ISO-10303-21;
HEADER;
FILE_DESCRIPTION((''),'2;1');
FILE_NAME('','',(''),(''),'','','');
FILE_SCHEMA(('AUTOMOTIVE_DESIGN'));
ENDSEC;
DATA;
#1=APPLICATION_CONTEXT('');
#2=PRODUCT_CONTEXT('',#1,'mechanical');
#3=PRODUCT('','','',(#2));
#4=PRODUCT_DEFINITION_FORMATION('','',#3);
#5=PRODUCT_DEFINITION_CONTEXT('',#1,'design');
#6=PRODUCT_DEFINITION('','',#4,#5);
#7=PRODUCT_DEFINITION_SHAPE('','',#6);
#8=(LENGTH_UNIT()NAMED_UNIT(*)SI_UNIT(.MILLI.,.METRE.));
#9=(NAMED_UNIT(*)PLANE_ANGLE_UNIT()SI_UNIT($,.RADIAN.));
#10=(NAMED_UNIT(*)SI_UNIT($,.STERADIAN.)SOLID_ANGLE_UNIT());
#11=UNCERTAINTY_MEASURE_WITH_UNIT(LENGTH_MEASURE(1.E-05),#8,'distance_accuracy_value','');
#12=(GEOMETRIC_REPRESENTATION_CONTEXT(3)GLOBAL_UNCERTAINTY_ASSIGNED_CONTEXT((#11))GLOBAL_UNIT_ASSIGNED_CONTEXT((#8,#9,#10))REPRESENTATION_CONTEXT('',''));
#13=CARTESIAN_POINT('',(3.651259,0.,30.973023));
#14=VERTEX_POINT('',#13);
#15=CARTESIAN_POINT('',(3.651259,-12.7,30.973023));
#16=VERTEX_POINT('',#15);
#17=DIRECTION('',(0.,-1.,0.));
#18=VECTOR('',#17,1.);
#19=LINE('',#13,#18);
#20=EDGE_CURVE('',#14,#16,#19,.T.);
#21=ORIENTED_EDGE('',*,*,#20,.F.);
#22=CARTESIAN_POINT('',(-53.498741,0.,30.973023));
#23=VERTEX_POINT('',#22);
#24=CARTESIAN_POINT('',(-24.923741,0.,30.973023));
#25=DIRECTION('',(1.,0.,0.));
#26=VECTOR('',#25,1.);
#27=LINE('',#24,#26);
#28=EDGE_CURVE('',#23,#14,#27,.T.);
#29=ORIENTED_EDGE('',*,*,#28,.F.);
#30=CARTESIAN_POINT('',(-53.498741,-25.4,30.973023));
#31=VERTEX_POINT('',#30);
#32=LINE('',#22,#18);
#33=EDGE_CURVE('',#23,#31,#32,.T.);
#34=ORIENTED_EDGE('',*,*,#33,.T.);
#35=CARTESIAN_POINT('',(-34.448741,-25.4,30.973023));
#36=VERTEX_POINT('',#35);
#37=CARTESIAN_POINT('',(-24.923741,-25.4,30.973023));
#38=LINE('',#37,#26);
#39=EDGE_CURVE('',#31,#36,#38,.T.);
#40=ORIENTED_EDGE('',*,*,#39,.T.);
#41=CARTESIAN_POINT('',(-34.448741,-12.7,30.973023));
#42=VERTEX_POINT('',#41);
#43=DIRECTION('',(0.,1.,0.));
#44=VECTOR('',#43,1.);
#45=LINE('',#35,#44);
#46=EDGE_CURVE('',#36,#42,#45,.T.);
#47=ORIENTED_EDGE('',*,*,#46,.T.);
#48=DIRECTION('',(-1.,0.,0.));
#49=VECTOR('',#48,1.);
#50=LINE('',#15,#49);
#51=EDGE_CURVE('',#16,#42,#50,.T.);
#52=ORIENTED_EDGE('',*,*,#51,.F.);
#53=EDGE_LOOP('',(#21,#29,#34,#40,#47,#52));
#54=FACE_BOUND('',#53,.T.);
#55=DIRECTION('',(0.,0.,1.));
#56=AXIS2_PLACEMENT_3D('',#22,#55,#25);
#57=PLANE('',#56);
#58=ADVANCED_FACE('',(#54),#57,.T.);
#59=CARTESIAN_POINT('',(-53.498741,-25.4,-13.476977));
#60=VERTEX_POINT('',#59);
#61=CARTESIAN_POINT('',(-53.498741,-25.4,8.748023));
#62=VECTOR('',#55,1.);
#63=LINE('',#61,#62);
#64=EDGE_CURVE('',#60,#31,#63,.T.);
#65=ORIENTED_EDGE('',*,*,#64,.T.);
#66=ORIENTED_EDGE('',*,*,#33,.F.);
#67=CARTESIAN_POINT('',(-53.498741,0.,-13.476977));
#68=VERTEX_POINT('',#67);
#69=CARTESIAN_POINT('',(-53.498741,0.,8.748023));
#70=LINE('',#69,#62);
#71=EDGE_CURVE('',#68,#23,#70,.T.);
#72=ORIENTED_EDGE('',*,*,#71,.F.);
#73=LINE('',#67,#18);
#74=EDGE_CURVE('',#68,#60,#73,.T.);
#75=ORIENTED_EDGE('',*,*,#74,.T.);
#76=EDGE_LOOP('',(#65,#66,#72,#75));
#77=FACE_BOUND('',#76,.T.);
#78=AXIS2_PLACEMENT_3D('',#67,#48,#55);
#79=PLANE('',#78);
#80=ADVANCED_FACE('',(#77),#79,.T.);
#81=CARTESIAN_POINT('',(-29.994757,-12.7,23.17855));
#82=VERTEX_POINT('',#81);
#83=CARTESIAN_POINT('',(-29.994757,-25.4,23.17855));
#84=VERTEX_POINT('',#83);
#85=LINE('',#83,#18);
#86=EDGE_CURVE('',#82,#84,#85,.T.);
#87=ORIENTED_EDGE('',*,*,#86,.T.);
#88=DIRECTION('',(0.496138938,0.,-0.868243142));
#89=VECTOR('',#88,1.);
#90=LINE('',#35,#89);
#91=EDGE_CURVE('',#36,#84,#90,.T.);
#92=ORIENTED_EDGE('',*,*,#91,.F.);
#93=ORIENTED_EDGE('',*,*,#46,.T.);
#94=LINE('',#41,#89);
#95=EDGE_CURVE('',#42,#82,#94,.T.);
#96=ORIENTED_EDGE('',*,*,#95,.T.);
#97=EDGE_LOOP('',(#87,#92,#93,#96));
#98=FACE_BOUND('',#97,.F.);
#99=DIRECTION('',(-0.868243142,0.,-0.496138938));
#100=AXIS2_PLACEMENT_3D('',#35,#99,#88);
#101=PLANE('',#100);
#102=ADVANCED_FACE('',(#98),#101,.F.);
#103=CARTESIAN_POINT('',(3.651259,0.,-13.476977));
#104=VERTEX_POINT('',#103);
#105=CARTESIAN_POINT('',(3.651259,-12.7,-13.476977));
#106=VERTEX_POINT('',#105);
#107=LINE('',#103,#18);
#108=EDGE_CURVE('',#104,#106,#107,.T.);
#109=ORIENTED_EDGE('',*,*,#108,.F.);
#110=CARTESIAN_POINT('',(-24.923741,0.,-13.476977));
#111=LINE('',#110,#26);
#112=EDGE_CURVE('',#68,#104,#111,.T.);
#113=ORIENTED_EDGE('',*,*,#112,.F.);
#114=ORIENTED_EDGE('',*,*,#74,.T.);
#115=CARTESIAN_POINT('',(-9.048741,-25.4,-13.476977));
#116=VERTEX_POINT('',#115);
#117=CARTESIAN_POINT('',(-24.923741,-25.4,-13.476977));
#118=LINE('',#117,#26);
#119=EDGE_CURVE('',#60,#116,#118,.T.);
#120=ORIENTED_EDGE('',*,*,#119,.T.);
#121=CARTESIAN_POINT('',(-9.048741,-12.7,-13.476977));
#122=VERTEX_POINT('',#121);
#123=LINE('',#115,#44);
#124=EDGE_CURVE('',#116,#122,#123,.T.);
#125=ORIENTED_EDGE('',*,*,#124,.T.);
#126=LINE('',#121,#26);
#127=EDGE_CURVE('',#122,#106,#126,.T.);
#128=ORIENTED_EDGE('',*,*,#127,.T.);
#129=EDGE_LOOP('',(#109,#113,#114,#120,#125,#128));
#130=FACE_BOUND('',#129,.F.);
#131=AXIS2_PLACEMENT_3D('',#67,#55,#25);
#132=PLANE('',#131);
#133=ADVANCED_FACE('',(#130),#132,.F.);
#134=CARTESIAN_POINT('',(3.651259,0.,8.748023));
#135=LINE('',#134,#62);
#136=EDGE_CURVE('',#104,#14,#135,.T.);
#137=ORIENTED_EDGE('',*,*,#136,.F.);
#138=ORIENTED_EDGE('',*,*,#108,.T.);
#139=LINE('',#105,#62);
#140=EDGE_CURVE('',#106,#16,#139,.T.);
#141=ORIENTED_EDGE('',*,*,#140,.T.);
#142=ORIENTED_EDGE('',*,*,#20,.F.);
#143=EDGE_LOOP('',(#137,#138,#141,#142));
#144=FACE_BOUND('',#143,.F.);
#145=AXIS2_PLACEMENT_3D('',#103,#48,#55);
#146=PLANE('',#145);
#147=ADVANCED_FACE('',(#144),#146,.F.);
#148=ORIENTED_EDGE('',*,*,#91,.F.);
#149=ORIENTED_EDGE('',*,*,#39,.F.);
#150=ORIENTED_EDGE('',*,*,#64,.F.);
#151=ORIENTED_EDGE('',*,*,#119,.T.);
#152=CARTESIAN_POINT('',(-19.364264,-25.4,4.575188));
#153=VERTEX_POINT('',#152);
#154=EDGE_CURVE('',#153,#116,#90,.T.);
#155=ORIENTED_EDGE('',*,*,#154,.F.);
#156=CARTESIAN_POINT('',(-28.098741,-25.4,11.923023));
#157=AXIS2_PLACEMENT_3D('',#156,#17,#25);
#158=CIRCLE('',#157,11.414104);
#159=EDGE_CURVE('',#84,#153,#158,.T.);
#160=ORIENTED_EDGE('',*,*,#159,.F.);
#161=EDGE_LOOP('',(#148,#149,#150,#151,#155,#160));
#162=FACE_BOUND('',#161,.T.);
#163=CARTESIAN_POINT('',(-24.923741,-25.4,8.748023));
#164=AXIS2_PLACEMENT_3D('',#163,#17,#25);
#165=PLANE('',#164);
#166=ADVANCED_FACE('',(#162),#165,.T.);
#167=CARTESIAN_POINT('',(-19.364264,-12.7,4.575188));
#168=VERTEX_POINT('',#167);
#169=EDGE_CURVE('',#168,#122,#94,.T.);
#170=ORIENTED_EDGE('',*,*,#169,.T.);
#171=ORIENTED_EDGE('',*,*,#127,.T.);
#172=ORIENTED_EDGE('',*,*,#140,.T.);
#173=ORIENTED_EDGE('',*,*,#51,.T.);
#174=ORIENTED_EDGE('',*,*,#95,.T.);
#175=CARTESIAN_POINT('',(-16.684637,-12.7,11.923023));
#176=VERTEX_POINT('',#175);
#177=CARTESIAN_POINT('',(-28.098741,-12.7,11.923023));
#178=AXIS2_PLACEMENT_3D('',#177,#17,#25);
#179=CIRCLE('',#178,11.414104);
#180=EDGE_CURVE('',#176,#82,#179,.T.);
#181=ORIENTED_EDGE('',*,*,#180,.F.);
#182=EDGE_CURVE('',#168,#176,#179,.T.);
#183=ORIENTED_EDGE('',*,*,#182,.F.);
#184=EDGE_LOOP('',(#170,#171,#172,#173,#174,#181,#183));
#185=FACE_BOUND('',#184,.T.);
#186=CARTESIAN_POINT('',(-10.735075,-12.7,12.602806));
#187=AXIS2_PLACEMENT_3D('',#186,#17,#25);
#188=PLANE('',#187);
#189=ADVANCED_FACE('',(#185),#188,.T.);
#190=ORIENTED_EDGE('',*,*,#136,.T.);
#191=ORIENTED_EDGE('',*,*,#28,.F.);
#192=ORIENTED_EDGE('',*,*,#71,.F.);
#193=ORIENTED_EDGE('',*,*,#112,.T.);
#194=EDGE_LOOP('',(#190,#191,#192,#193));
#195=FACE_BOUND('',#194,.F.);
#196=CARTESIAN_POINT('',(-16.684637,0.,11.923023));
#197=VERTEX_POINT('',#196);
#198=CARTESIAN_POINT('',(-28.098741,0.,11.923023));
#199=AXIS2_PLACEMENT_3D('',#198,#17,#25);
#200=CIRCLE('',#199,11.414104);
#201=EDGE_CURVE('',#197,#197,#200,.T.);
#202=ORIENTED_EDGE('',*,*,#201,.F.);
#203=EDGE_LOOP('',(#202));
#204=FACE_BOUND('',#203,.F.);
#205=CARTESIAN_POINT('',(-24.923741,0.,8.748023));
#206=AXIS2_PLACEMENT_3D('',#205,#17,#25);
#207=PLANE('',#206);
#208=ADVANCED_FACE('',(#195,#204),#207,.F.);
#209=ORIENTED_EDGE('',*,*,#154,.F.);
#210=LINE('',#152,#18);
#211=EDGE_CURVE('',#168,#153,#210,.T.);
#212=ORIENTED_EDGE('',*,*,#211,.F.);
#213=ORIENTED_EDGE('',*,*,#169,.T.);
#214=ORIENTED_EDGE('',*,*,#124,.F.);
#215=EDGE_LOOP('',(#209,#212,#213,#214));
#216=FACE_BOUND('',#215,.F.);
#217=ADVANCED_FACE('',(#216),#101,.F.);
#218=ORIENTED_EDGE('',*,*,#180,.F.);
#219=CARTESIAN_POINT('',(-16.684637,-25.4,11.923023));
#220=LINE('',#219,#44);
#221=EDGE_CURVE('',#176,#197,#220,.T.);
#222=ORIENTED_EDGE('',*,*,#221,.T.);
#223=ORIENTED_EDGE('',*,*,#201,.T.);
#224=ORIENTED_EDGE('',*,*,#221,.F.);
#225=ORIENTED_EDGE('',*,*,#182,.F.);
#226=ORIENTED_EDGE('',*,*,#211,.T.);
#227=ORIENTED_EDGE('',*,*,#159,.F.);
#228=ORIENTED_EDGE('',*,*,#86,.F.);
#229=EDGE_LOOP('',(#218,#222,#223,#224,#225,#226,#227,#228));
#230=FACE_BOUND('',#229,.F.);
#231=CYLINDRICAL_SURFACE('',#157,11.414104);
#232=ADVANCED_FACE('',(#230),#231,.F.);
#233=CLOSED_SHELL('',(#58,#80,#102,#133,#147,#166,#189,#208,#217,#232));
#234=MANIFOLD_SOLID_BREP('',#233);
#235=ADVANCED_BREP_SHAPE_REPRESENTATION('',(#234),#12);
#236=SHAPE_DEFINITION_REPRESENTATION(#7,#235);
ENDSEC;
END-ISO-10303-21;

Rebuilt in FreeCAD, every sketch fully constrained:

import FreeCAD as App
import Part
import Sketcher
from FreeCAD import Vector
Q = App.Units.Quantity


def add_polygon(sketch, points):
    """Adds a closed chain of lines whose ends are joined by coincident constraints."""
    first, n = sketch.GeometryCount, len(points)
    for a, b in zip(points, points[1:] + points[:1]):
        sketch.addGeometry(Part.LineSegment(App.Vector(*a, 0), App.Vector(*b, 0)), False)
    for i in range(n):
        sketch.addConstraint(Sketcher.Constraint("Coincident", first + i, 2, first + (i + 1) % n, 1))

doc = App.newDocument("Part")
body = doc.addObject("PartDesign::Body", "Body")

# Sketch on XZ plane
sketch1 = body.newObject("Sketcher::SketchObject", "Sketch")
sketch1.AttachmentSupport = (doc.getObject("XZ_Plane"), [""])
sketch1.MapMode = "FlatFace"
add_polygon(sketch1, [(-53, 31), (-53, -13), (4, -13), (4, 31)])  # lines 0-3
sketch1.addConstraint(Sketcher.Constraint("Vertical", 0))
sketch1.addConstraint(Sketcher.Constraint("Horizontal", 1))
sketch1.addConstraint(Sketcher.Constraint("Vertical", 2))
sketch1.addConstraint(Sketcher.Constraint("Horizontal", 3))
sketch1.addConstraint(Sketcher.Constraint("DistanceX", 1, 1, 1, 2, Q("2.25 in")))
sketch1.addConstraint(Sketcher.Constraint("DistanceY", 0, 2, 0, 1, Q("1.75 in")))
sketch1.addConstraint(Sketcher.Constraint("DistanceX", 0, 2, -1, 1, Q("53.498741 mm")))
sketch1.addConstraint(Sketcher.Constraint("DistanceY", 0, 2, -1, 1, Q("13.476977 mm")))
pad1 = body.newObject("PartDesign::Pad", "Pad")
pad1.Profile = sketch1
pad1.Length = Q("1 in")

# Sketch on XZ plane
sketch2 = body.newObject("Sketcher::SketchObject", "Sketch001")
sketch2.AttachmentSupport = (doc.getObject("XZ_Plane"), [""])
sketch2.MapMode = "FlatFace"
sketch2.AttachmentOffset = App.Placement(Vector(0, 0, 1 * 25.4), App.Rotation())
sketch2.addGeometry(Part.Circle(Vector(-28, 12, 0), Vector(0, 0, 1), 11), False)
sketch2.addConstraint(Sketcher.Constraint("Diameter", 0, Q("22.828208 mm")))
sketch2.addConstraint(Sketcher.Constraint("DistanceX", 0, 3, -1, 1, Q("28.098741 mm")))
sketch2.addConstraint(Sketcher.Constraint("DistanceY", -1, 1, 0, 3, Q("11.923023 mm")))
pocket1 = body.newObject("PartDesign::Pocket", "Pocket")
pocket1.Profile = sketch2
pocket1.Length = Q("1 in")

# Sketch on XZ plane
sketch3 = body.newObject("Sketcher::SketchObject", "Sketch002")
sketch3.AttachmentSupport = (doc.getObject("XZ_Plane"), [""])
sketch3.MapMode = "FlatFace"
sketch3.AttachmentOffset = App.Placement(Vector(0, 0, 1 * 25.4), App.Rotation())
add_polygon(sketch3, [(4, 31), (-34, 31), (-9, -13), (4, -13)])  # lines 0-3
sketch3.addConstraint(Sketcher.Constraint("Horizontal", 0))
sketch3.addConstraint(Sketcher.Constraint("Horizontal", 2))
sketch3.addConstraint(Sketcher.Constraint("Vertical", 3))
sketch3.addConstraint(Sketcher.Constraint("DistanceX", 0, 2, 0, 1, Q("1.5 in")))
sketch3.addConstraint(Sketcher.Constraint("DistanceX", 2, 1, 2, 2, Q("0.5 in")))
sketch3.addConstraint(Sketcher.Constraint("DistanceY", 3, 1, 3, 2, Q("1.75 in")))
sketch3.addConstraint(Sketcher.Constraint("DistanceX", 0, 2, -1, 1, Q("34.448741 mm")))
sketch3.addConstraint(Sketcher.Constraint("DistanceY", -1, 1, 0, 2, Q("30.973023 mm")))
pocket2 = body.newObject("PartDesign::Pocket", "Pocket001")
pocket2.Profile = sketch3
pocket2.Length = Q("0.5 in")

doc.recompute()
